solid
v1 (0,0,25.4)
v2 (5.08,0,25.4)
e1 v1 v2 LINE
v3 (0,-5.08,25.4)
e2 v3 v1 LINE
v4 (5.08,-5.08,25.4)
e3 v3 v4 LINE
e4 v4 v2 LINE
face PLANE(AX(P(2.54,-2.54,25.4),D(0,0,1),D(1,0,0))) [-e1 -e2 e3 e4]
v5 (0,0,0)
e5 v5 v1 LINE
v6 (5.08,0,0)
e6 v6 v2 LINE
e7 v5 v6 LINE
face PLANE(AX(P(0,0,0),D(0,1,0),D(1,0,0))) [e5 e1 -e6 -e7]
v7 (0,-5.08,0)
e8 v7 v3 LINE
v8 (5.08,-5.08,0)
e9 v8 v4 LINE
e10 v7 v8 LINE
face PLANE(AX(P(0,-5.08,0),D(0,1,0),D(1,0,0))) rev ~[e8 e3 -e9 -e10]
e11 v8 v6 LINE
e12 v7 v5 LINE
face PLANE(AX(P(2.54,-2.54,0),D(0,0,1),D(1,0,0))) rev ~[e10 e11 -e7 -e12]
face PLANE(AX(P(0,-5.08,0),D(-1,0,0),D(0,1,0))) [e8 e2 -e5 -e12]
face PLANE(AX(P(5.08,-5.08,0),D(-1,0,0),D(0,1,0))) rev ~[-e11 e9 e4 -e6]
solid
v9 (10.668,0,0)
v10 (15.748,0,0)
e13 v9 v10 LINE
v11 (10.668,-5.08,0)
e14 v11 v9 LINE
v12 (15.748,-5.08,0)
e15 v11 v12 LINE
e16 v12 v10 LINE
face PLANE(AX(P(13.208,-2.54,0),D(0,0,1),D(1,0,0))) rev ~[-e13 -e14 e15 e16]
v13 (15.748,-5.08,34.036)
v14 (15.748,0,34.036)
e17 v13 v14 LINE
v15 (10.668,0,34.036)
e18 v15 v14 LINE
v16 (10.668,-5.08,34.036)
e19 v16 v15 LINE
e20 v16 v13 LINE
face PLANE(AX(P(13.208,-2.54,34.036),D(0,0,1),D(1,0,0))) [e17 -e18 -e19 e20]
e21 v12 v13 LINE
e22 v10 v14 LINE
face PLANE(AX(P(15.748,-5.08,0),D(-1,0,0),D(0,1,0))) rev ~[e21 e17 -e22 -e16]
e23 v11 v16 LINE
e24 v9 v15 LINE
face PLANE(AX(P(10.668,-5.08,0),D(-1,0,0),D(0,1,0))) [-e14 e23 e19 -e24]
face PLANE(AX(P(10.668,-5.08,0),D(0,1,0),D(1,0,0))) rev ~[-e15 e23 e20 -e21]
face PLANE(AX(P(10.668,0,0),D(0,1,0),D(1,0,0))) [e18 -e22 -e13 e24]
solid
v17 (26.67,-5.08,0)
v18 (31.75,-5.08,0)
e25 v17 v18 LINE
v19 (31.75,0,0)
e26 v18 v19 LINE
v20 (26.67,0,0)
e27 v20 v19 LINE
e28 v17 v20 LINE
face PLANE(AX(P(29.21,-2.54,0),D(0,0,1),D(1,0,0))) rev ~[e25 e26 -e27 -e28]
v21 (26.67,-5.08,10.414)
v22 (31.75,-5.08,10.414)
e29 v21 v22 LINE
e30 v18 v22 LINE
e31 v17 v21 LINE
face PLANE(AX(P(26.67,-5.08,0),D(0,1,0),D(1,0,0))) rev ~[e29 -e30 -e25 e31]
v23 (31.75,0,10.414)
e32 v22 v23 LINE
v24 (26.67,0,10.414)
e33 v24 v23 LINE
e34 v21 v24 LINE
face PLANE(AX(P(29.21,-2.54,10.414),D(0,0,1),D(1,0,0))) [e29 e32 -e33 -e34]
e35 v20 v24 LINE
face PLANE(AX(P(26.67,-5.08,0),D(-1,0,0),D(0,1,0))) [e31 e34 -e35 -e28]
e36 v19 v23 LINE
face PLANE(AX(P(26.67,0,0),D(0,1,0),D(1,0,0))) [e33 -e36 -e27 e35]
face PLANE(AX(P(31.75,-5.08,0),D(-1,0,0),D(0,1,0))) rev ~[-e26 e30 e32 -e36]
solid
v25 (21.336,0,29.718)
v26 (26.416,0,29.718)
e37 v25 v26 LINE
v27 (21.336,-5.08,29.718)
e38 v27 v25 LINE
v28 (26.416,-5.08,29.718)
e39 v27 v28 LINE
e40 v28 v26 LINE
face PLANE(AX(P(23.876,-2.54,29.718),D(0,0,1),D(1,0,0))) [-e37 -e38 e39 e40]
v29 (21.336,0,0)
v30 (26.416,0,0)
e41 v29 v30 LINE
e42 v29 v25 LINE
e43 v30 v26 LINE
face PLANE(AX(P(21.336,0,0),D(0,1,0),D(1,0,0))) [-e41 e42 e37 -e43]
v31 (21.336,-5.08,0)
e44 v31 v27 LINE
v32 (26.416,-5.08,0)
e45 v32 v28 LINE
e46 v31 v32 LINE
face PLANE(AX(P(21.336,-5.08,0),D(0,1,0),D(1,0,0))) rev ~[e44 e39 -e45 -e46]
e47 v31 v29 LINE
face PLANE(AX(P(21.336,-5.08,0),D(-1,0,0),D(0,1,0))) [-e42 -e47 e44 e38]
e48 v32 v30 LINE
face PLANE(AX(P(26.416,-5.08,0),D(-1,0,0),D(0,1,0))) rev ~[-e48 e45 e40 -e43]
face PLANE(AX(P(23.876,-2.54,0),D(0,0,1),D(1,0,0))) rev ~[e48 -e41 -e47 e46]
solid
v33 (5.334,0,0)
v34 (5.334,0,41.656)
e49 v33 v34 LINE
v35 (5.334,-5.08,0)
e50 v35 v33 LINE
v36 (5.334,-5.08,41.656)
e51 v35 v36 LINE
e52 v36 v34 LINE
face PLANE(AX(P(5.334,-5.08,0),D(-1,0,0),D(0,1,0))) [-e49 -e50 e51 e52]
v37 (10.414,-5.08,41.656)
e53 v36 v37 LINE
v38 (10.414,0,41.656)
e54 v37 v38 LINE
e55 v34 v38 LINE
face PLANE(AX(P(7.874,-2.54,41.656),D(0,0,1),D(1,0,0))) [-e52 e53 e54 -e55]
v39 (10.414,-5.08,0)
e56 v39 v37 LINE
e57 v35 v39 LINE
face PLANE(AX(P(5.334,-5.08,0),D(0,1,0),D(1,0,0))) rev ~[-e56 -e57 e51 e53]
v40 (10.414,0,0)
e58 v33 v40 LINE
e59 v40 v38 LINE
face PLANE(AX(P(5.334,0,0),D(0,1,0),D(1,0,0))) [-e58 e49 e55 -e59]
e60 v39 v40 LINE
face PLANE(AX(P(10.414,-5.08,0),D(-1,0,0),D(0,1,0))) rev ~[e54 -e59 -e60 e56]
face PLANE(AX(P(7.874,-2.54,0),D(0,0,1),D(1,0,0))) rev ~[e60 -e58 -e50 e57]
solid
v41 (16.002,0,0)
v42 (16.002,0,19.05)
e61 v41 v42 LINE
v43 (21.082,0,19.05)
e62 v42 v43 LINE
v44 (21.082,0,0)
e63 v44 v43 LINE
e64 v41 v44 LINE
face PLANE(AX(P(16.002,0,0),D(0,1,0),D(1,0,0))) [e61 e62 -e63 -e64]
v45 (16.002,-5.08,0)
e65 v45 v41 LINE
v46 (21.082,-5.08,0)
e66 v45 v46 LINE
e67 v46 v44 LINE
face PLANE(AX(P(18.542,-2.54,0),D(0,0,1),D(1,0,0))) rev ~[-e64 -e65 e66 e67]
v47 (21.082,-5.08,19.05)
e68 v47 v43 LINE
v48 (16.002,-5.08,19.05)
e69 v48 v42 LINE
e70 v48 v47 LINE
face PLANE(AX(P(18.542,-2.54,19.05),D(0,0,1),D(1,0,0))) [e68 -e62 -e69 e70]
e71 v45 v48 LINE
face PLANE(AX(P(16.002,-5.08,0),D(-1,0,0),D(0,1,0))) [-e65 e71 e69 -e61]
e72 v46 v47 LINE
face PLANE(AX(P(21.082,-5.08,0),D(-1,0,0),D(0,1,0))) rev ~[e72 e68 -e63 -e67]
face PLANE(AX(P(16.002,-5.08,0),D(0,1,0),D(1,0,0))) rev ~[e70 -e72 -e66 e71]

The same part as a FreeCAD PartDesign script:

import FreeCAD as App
import Part
import Sketcher

V = App.Vector
Q = App.Units.Quantity

doc = App.newDocument("Part")
params = doc.addObject("Spreadsheet::Sheet", "Params")
for row, (alias, value) in enumerate([
    ("sketch1_width", "0.2 in"),
    ("pad1_length", "1 in"),
    ("sketch2_width", "0.2 in"),
    ("pad2_length", "1.64 in"),
    ("sketch3_width", "0.2 in"),
    ("pad3_length", "1.34 in"),
    ("sketch4_width", "0.2 in"),
    ("pad4_length", "0.75 in"),
    ("sketch5_width", "0.2 in"),
    ("pad5_length", "1.17 in"),
    ("sketch6_width", "0.2 in"),
    ("pad6_length", "0.41 in"),
], start=1):
    params.set(f"A{row}", alias)
    params.set(f"B{row}", "=" + value)
    params.setAlias(f"B{row}", alias)

body = doc.addObject("PartDesign::Body", "Body")

# Sketch on XY plane
sketch1 = body.newObject("Sketcher::SketchObject", "Sketch")
sketch1.AttachmentSupport = (doc.getObject("XY_Plane"), [""])
sketch1.MapMode = "FlatFace"
sketch1.addGeometry([
    Part.LineSegment(V(0, 0, 0), V(0, -5.08, 0)),
    Part.LineSegment(V(0, -5.08, 0), V(5.08, -5.08, 0)),
    Part.LineSegment(V(5.08, -5.08, 0), V(5.08, 0, 0)),
    Part.LineSegment(V(5.08, 0, 0), V(0, 0, 0)),
], False)
sketch1.addConstraint([
    Sketcher.Constraint("Coincident", 0, 2, 1, 1),
    Sketcher.Constraint("Coincident", 1, 2, 2, 1),
    Sketcher.Constraint("Coincident", 2, 2, 3, 1),
    Sketcher.Constraint("Coincident", 3, 2, 0, 1),
    Sketcher.Constraint("Vertical", 0),
    Sketcher.Constraint("Horizontal", 1),
    Sketcher.Constraint("Vertical", 2),
    Sketcher.Constraint("Horizontal", 3),
    Sketcher.Constraint("Coincident", 3, 2, -1, 1),
    Sketcher.Constraint("Equal", 3, 0),
    Sketcher.Constraint("DistanceX", 1, 1, 1, 2, Q("0.2 in")),
])
sketch1.setExpression("Constraints[10]", "Params.sketch1_width")
pad1 = body.newObject("PartDesign::Pad", "Pad")
pad1.Profile = sketch1
pad1.setExpression("Length", "Params.pad1_length")
body2 = doc.addObject("PartDesign::Body", "Body001")

# Sketch on XY plane
sketch2 = body2.newObject("Sketcher::SketchObject", "Sketch001")
sketch2.AttachmentSupport = (doc.getObject("XY_Plane001"), [""])
sketch2.MapMode = "FlatFace"
sketch2.addGeometry([
    Part.LineSegment(V(5.334, 0, 0), V(5.334, -5.08, 0)),
    Part.LineSegment(V(5.334, -5.08, 0), V(10.414, -5.08, 0)),
    Part.LineSegment(V(10.414, -5.08, 0), V(10.414, 0, 0)),
    Part.LineSegment(V(10.414, 0, 0), V(5.334, 0, 0)),
], False)
sketch2.addConstraint([
    Sketcher.Constraint("Coincident", 0, 2, 1, 1),
    Sketcher.Constraint("Coincident", 1, 2, 2, 1),
    Sketcher.Constraint("Coincident", 2, 2, 3, 1),
    Sketcher.Constraint("Coincident", 3, 2, 0, 1),
    Sketcher.Constraint("Vertical", 0),
    Sketcher.Constraint("Horizontal", 1),
    Sketcher.Constraint("Vertical", 2),
    Sketcher.Constraint("Horizontal", 3),
    Sketcher.Constraint("PointOnObject", 2, 2, -1),
    Sketcher.Constraint("Equal", 3, 0),
    Sketcher.Constraint("DistanceX", 1, 1, 1, 2, Q("0.2 in")),
    Sketcher.Constraint("DistanceX", -1, 1, 0, 2, Q("0.21 in")),
])
sketch2.setExpression("Constraints[10]", "Params.sketch2_width")
pad2 = body2.newObject("PartDesign::Pad", "Pad001")
pad2.Profile = sketch2
pad2.setExpression("Length", "Params.pad2_length")
body3 = doc.addObject("PartDesign::Body", "Body002")

# Sketch on XY plane
sketch3 = body3.newObject("Sketcher::SketchObject", "Sketch002")
sketch3.AttachmentSupport = (doc.getObject("XY_Plane002"), [""])
sketch3.MapMode = "FlatFace"
sketch3.addGeometry([
    Part.LineSegment(V(10.668, 0, 0), V(10.668, -5.08, 0)),
    Part.LineSegment(V(10.668, -5.08, 0), V(15.748, -5.08, 0)),
    Part.LineSegment(V(15.748, -5.08, 0), V(15.748, 0, 0)),
    Part.LineSegment(V(15.748, 0, 0), V(10.668, 0, 0)),
], False)
sketch3.addConstraint([
    Sketcher.Constraint("Coincident", 0, 2, 1, 1),
    Sketcher.Constraint("Coincident", 1, 2, 2, 1),
    Sketcher.Constraint("Coincident", 2, 2, 3, 1),
    Sketcher.Constraint("Coincident", 3, 2, 0, 1),
    Sketcher.Constraint("Vertical", 0),
    Sketcher.Constraint("Horizontal", 1),
    Sketcher.Constraint("Vertical", 2),
    Sketcher.Constraint("Horizontal", 3),
    Sketcher.Constraint("PointOnObject", 2, 2, -1),
    Sketcher.Constraint("Equal", 3, 0),
    Sketcher.Constraint("DistanceX", 1, 1, 1, 2, Q("0.2 in")),
    Sketcher.Constraint("DistanceX", -1, 1, 0, 2, Q("0.42 in")),
])
sketch3.setExpression("Constraints[10]", "Params.sketch3_width")
pad3 = body3.newObject("PartDesign::Pad", "Pad002")
pad3.Profile = sketch3
pad3.setExpression("Length", "Params.pad3_length")
body4 = doc.addObject("PartDesign::Body", "Body003")

# Sketch on XY plane
sketch4 = body4.newObject("Sketcher::SketchObject", "Sketch003")
sketch4.AttachmentSupport = (doc.getObject("XY_Plane003"), [""])
sketch4.MapMode = "FlatFace"
sketch4.addGeometry([
    Part.LineSegment(V(16.002, 0, 0), V(16.002, -5.08, 0)),
    Part.LineSegment(V(16.002, -5.08, 0), V(21.082, -5.08, 0)),
    Part.LineSegment(V(21.082, -5.08, 0), V(21.082, 0, 0)),
    Part.LineSegment(V(21.082, 0, 0), V(16.002, 0, 0)),
], False)
sketch4.addConstraint([
    Sketcher.Constraint("Coincident", 0, 2, 1, 1),
    Sketcher.Constraint("Coincident", 1, 2, 2, 1),
    Sketcher.Constraint("Coincident", 2, 2, 3, 1),
    Sketcher.Constraint("Coincident", 3, 2, 0, 1),
    Sketcher.Constraint("Vertical", 0),
    Sketcher.Constraint("Horizontal", 1),
    Sketcher.Constraint("Vertical", 2),
    Sketcher.Constraint("Horizontal", 3),
    Sketcher.Constraint("PointOnObject", 2, 2, -1),
    Sketcher.Constraint("Equal", 3, 0),
    Sketcher.Constraint("DistanceX", 1, 1, 1, 2, Q("0.2 in")),
    Sketcher.Constraint("DistanceX", -1, 1, 0, 2, Q("0.63 in")),
])
sketch4.setExpression("Constraints[10]", "Params.sketch4_width")
pad4 = body4.newObject("PartDesign::Pad", "Pad003")
pad4.Profile = sketch4
pad4.setExpression("Length", "Params.pad4_length")
body5 = doc.addObject("PartDesign::Body", "Body004")

# Sketch on XY plane
sketch5 = body5.newObject("Sketcher::SketchObject", "Sketch004")
sketch5.AttachmentSupport = (doc.getObject("XY_Plane004"), [""])
sketch5.MapMode = "FlatFace"
sketch5.addGeometry([
    Part.LineSegment(V(21.336, 0, 0), V(21.336, -5.08, 0)),
    Part.LineSegment(V(21.336, -5.08, 0), V(26.416, -5.08, 0)),
    Part.LineSegment(V(26.416, -5.08, 0), V(26.416, 0, 0)),
    Part.LineSegment(V(26.416, 0, 0), V(21.336, 0, 0)),
], False)
sketch5.addConstraint([
    Sketcher.Constraint("Coincident", 0, 2, 1, 1),
    Sketcher.Constraint("Coincident", 1, 2, 2, 1),
    Sketcher.Constraint("Coincident", 2, 2, 3, 1),
    Sketcher.Constraint("Coincident", 3, 2, 0, 1),
    Sketcher.Constraint("Vertical", 0),
    Sketcher.Constraint("Horizontal", 1),
    Sketcher.Constraint("Vertical", 2),
    Sketcher.Constraint("Horizontal", 3),
    Sketcher.Constraint("PointOnObject", 2, 2, -1),
    Sketcher.Constraint("Equal", 3, 0),
    Sketcher.Constraint("DistanceX", 1, 1, 1, 2, Q("0.2 in")),
    Sketcher.Constraint("DistanceX", -1, 1, 0, 2, Q("0.84 in")),
])
sketch5.setExpression("Constraints[10]", "Params.sketch5_width")
pad5 = body5.newObject("PartDesign::Pad", "Pad004")
pad5.Profile = sketch5
pad5.setExpression("Length", "Params.pad5_length")
body6 = doc.addObject("PartDesign::Body", "Body005")

# Sketch on XY plane
sketch6 = body6.newObject("Sketcher::SketchObject", "Sketch005")
sketch6.AttachmentSupport = (doc.getObject("XY_Plane005"), [""])
sketch6.MapMode = "FlatFace"
sketch6.addGeometry([
    Part.LineSegment(V(26.67, 0, 0), V(26.67, -5.08, 0)),
    Part.LineSegment(V(26.67, -5.08, 0), V(31.75, -5.08, 0)),
    Part.LineSegment(V(31.75, -5.08, 0), V(31.75, 0, 0)),
    Part.LineSegment(V(31.75, 0, 0), V(26.67, 0, 0)),
], False)
sketch6.addConstraint([
    Sketcher.Constraint("Coincident", 0, 2, 1, 1),
    Sketcher.Constraint("Coincident", 1, 2, 2, 1),
    Sketcher.Constraint("Coincident", 2, 2, 3, 1),
    Sketcher.Constraint("Coincident", 3, 2, 0, 1),
    Sketcher.Constraint("Vertical", 0),
    Sketcher.Constraint("Horizontal", 1),
    Sketcher.Constraint("Vertical", 2),
    Sketcher.Constraint("Horizontal", 3),
    Sketcher.Constraint("PointOnObject", 2, 2, -1),
    Sketcher.Constraint("Equal", 3, 0),
    Sketcher.Constraint("DistanceX", 1, 1, 1, 2, Q("0.2 in")),
    Sketcher.Constraint("DistanceX", -1, 1, 0, 2, Q("1.05 in")),
])
sketch6.setExpression("Constraints[10]", "Params.sketch6_width")
pad6 = body6.newObject("PartDesign::Pad", "Pad005")
pad6.Profile = sketch6
pad6.setExpression("Length", "Params.pad6_length")

doc.recompute()
